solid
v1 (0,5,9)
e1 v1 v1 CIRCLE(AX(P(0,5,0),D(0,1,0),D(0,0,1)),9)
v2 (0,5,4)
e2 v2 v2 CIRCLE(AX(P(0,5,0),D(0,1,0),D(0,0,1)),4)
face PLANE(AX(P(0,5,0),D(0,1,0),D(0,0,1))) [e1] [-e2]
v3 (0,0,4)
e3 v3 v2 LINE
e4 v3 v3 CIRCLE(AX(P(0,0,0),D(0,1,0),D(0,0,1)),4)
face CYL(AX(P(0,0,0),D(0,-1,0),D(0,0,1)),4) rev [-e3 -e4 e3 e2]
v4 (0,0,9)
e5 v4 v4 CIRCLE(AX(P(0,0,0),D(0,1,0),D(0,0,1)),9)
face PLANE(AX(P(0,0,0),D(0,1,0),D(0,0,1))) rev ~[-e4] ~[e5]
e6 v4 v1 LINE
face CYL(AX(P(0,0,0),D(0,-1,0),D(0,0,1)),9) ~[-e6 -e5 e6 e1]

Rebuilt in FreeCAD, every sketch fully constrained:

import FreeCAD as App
import Part
import Sketcher
from FreeCAD import Vector

doc = App.newDocument("Part")
body = doc.addObject("PartDesign::Body", "Body")

# Sketch on XZ plane
sketch1 = body.newObject("Sketcher::SketchObject", "Sketch")
sketch1.AttachmentSupport = (doc.getObject("XZ_Plane"), [""])
sketch1.MapMode = "FlatFace"
sketch1.addGeometry(Part.Circle(Vector(0, 0, 0), Vector(0, 0, 1), 9), False)
sketch1.addGeometry(Part.Circle(Vector(0, 0, 0), Vector(0, 0, 1), 4), False)
sketch1.addConstraint(Sketcher.Constraint("Coincident", 0, 3, -1, 1))
sketch1.addConstraint(Sketcher.Constraint("Coincident", 1, 3, -1, 1))
sketch1.addConstraint(Sketcher.Constraint("Diameter", 0, 18.0))
sketch1.addConstraint(Sketcher.Constraint("Diameter", 1, 8.0))
pad1 = body.newObject("PartDesign::Pad", "Pad")
pad1.Profile = sketch1
pad1.Length = 5
pad1.Reversed = True

doc.recompute()
